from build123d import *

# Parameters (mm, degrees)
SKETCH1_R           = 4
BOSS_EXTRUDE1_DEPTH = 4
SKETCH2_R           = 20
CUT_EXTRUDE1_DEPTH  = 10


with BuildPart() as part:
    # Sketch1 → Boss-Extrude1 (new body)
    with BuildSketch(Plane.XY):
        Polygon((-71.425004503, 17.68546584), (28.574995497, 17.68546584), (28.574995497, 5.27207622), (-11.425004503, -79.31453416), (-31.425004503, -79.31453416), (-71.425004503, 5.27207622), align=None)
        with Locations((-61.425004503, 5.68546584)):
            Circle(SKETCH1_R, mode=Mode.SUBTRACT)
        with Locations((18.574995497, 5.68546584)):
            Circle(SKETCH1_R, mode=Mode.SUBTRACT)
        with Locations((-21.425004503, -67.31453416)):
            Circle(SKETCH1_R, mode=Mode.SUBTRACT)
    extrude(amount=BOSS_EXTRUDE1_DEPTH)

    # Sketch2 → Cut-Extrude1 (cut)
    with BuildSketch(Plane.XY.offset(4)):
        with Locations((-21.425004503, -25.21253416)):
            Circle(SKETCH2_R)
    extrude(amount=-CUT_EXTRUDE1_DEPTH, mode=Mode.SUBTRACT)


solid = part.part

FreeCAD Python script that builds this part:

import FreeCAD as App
import Part
import Sketcher

V = App.Vector
Q = App.Units.Quantity


def add_polygon(sketch, points):
    """Adds a closed chain of lines whose ends are joined by coincident constraints."""
    first, n = sketch.GeometryCount, len(points)
    for a, b in zip(points, points[1:] + points[:1]):
        sketch.addGeometry(Part.LineSegment(App.Vector(*a, 0), App.Vector(*b, 0)), False)
    for i in range(n):
        sketch.addConstraint(Sketcher.Constraint("Coincident", first + i, 2, first + (i + 1) % n, 1))

doc = App.newDocument("Part")
params = doc.addObject("Spreadsheet::Sheet", "Params")
for row, (alias, value) in enumerate([
    ("sketch1_diameter", "8 mm"),
    ("sketch1_width", "100 mm"),
    ("sketch1_width2", "20 mm"),
    ("pad1_length", "4 mm"),
    ("sketch2_diameter", "40 mm"),
    ("pocket1_length", "10 mm"),
], start=1):
    params.set(f"A{row}", alias)
    params.set(f"B{row}", "=" + value)
    params.setAlias(f"B{row}", alias)

body = doc.addObject("PartDesign::Body", "Body")

# Sketch on XY plane
sketch1 = body.newObject("Sketcher::SketchObject", "Sketch")
sketch1.AttachmentSupport = (doc.getObject("XY_Plane"), [""])
sketch1.MapMode = "FlatFace"
add_polygon(sketch1, [(28.6, 17.7), (-71.4, 17.7), (-71.4, 5.3), (-31.4, -79.3), (-11.4, -79.3), (28.6, 5.3)])  # lines 0-5
sketch1.addGeometry(Part.Circle(V(-21.4, -67.3, 0), V(0, 0, 1), 4), False)  # 6
sketch1.addGeometry(Part.Circle(V(18.6, 5.7, 0), V(0, 0, 1), 4), False)  # 7
sketch1.addGeometry(Part.Circle(V(-61.4, 5.7, 0), V(0, 0, 1), 4), False)  # 8
sketch1.addConstraint([
    Sketcher.Constraint("Horizontal", 0),
    Sketcher.Constraint("Vertical", 1),
    Sketcher.Constraint("Horizontal", 3),
    Sketcher.Constraint("Vertical", 5),
    Sketcher.Constraint("Equal", 6, 7),
    Sketcher.Constraint("Equal", 7, 8),
    Sketcher.Constraint("Horizontal", 7, 3, 8, 3),
    Sketcher.Constraint("Horizontal", 1, 2, 4, 2),
    Sketcher.Constraint("Equal", 2, 4),
    Sketcher.Constraint("Diameter", 6, Q("8 mm")),
    Sketcher.Constraint("DistanceX", 0, 2, 0, 1, Q("100 mm")),
    Sketcher.Constraint("DistanceX", 3, 1, 3, 2, Q("20 mm")),
    Sketcher.Constraint("DistanceX", 6, 3, 7, 3, Q("40 mm")),
    Sketcher.Constraint("DistanceY", 6, 3, 7, 3, Q("73 mm")),
    Sketcher.Constraint("DistanceX", 8, 3, 7, 3, Q("80 mm")),
    Sketcher.Constraint("DistanceX", 0, 2, 8, 3, Q("10 mm")),
    Sketcher.Constraint("DistanceY", 8, 3, 0, 2, Q("12 mm")),
    Sketcher.Constraint("DistanceY", 2, 2, 6, 3, Q("12 mm")),
    Sketcher.Constraint("DistanceY", 1, 2, 1, 1, Q("12.41339 mm")),
    Sketcher.Constraint("DistanceX", 6, 3, -1, 1, Q("21.425005 mm")),
    Sketcher.Constraint("DistanceY", 6, 3, -1, 1, Q("67.314534 mm")),
])
sketch1.setExpression("Constraints[15]", "Params.sketch1_diameter")
sketch1.setExpression("Constraints[16]", "Params.sketch1_width")
sketch1.setExpression("Constraints[17]", "Params.sketch1_width2")
pad1 = body.newObject("PartDesign::Pad", "Pad")
pad1.Profile = sketch1
pad1.setExpression("Length", "Params.pad1_length")

# Sketch on XY plane
sketch2 = body.newObject("Sketcher::SketchObject", "Sketch001")
sketch2.AttachmentSupport = (doc.getObject("XY_Plane"), [""])
sketch2.MapMode = "FlatFace"
sketch2.AttachmentOffset = App.Placement(V(0, 0, 4), App.Rotation())
sketch2.addGeometry(Part.Circle(V(-21, -25, 0), V(0, 0, 1), 20), False)
sketch2.addConstraint([
    Sketcher.Constraint("Diameter", 0, Q("40 mm")),
    Sketcher.Constraint("DistanceX", 0, 3, -1, 1, Q("21.425005 mm")),
    Sketcher.Constraint("DistanceY", 0, 3, -1, 1, Q("25.212534 mm")),
])
sketch2.setExpression("Constraints[0]", "Params.sketch2_diameter")
pocket1 = body.newObject("PartDesign::Pocket", "Pocket")
pocket1.Profile = sketch2
pocket1.setExpression("Length", "Params.pocket1_length")

doc.recompute()
